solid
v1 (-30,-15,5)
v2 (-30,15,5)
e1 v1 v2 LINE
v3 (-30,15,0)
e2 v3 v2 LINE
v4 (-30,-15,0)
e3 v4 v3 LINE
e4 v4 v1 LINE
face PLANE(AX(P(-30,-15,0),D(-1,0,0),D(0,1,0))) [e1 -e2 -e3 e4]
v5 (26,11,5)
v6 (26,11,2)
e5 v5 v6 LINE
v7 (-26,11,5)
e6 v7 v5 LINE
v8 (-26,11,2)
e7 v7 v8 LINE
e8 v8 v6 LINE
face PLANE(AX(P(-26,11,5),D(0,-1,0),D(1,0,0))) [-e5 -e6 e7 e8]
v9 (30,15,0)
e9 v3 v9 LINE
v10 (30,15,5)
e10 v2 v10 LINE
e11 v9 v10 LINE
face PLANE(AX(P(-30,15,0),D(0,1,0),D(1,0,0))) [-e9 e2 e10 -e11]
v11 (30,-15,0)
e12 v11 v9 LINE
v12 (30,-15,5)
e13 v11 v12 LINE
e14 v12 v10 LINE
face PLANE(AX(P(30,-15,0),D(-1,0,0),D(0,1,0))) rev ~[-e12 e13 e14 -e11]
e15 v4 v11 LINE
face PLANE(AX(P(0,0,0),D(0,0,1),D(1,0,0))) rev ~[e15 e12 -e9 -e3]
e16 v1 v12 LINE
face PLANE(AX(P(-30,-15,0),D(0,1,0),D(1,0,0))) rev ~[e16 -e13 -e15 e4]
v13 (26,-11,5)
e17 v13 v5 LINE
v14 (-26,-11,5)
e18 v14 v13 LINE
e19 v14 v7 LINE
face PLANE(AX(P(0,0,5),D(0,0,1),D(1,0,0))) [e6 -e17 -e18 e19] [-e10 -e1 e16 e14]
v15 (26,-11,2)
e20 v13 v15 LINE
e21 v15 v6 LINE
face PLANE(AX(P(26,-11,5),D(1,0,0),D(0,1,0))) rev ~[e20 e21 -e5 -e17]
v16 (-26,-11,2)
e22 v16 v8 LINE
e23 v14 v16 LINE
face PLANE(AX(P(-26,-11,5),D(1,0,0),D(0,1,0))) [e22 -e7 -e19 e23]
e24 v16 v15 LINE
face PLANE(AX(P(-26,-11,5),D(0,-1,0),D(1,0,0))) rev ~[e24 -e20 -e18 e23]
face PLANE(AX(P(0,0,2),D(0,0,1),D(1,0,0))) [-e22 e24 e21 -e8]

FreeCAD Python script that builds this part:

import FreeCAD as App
import Part
import Sketcher
Q = App.Units.Quantity


def add_polygon(sketch, points):
    """Adds a closed chain of lines whose ends are joined by coincident constraints."""
    first, n = sketch.GeometryCount, len(points)
    for a, b in zip(points, points[1:] + points[:1]):
        sketch.addGeometry(Part.LineSegment(App.Vector(*a, 0), App.Vector(*b, 0)), False)
    for i in range(n):
        sketch.addConstraint(Sketcher.Constraint("Coincident", first + i, 2, first + (i + 1) % n, 1))

doc = App.newDocument("Part")
body = doc.addObject("PartDesign::Body", "Body")

sketch1 = body.newObject("Sketcher::SketchObject", "Sketch")
sketch1.AttachmentSupport = (doc.getObject("XY_Plane"), [""])
sketch1.MapMode = "FlatFace"
add_polygon(sketch1, [(-30, 15), (-30, -15), (30, -15), (30, 15)])
sketch1.addConstraint([
    Sketcher.Constraint("Vertical", 0),
    Sketcher.Constraint("Horizontal", 1),
    Sketcher.Constraint("Vertical", 2),
    Sketcher.Constraint("Horizontal", 3),
    Sketcher.Constraint("Symmetric", 0, 2, 2, 2, -1, 1),
    Sketcher.Constraint("DistanceX", 1, 1, 1, 2, Q("60 mm")),
    Sketcher.Constraint("DistanceY", 0, 2, 0, 1, Q("30 mm")),
])
pad1 = body.newObject("PartDesign::Pad", "Pad")
pad1.Profile = sketch1
pad1.Length = 5

sketch2 = body.newObject("Sketcher::SketchObject", "Sketch001")
sketch2.AttachmentSupport = (doc.getObject("XY_Plane"), [""])
sketch2.MapMode = "FlatFace"
sketch2.AttachmentOffset = App.Placement(App.Vector(0, 0, 5), App.Rotation())
add_polygon(sketch2, [(-26, 11), (-26, -11), (26, -11), (26, 11)])
sketch2.addConstraint([
    Sketcher.Constraint("Vertical", 0),
    Sketcher.Constraint("Horizontal", 1),
    Sketcher.Constraint("Vertical", 2),
    Sketcher.Constraint("Horizontal", 3),
    Sketcher.Constraint("Symmetric", 0, 2, 2, 2, -1, 1),
    Sketcher.Constraint("DistanceX", 1, 1, 1, 2, Q("52 mm")),
    Sketcher.Constraint("DistanceY", 0, 2, 0, 1, Q("22 mm")),
])
pocket1 = body.newObject("PartDesign::Pocket", "Pocket")
pocket1.Profile = sketch2
pocket1.Length = 3

doc.recompute()
